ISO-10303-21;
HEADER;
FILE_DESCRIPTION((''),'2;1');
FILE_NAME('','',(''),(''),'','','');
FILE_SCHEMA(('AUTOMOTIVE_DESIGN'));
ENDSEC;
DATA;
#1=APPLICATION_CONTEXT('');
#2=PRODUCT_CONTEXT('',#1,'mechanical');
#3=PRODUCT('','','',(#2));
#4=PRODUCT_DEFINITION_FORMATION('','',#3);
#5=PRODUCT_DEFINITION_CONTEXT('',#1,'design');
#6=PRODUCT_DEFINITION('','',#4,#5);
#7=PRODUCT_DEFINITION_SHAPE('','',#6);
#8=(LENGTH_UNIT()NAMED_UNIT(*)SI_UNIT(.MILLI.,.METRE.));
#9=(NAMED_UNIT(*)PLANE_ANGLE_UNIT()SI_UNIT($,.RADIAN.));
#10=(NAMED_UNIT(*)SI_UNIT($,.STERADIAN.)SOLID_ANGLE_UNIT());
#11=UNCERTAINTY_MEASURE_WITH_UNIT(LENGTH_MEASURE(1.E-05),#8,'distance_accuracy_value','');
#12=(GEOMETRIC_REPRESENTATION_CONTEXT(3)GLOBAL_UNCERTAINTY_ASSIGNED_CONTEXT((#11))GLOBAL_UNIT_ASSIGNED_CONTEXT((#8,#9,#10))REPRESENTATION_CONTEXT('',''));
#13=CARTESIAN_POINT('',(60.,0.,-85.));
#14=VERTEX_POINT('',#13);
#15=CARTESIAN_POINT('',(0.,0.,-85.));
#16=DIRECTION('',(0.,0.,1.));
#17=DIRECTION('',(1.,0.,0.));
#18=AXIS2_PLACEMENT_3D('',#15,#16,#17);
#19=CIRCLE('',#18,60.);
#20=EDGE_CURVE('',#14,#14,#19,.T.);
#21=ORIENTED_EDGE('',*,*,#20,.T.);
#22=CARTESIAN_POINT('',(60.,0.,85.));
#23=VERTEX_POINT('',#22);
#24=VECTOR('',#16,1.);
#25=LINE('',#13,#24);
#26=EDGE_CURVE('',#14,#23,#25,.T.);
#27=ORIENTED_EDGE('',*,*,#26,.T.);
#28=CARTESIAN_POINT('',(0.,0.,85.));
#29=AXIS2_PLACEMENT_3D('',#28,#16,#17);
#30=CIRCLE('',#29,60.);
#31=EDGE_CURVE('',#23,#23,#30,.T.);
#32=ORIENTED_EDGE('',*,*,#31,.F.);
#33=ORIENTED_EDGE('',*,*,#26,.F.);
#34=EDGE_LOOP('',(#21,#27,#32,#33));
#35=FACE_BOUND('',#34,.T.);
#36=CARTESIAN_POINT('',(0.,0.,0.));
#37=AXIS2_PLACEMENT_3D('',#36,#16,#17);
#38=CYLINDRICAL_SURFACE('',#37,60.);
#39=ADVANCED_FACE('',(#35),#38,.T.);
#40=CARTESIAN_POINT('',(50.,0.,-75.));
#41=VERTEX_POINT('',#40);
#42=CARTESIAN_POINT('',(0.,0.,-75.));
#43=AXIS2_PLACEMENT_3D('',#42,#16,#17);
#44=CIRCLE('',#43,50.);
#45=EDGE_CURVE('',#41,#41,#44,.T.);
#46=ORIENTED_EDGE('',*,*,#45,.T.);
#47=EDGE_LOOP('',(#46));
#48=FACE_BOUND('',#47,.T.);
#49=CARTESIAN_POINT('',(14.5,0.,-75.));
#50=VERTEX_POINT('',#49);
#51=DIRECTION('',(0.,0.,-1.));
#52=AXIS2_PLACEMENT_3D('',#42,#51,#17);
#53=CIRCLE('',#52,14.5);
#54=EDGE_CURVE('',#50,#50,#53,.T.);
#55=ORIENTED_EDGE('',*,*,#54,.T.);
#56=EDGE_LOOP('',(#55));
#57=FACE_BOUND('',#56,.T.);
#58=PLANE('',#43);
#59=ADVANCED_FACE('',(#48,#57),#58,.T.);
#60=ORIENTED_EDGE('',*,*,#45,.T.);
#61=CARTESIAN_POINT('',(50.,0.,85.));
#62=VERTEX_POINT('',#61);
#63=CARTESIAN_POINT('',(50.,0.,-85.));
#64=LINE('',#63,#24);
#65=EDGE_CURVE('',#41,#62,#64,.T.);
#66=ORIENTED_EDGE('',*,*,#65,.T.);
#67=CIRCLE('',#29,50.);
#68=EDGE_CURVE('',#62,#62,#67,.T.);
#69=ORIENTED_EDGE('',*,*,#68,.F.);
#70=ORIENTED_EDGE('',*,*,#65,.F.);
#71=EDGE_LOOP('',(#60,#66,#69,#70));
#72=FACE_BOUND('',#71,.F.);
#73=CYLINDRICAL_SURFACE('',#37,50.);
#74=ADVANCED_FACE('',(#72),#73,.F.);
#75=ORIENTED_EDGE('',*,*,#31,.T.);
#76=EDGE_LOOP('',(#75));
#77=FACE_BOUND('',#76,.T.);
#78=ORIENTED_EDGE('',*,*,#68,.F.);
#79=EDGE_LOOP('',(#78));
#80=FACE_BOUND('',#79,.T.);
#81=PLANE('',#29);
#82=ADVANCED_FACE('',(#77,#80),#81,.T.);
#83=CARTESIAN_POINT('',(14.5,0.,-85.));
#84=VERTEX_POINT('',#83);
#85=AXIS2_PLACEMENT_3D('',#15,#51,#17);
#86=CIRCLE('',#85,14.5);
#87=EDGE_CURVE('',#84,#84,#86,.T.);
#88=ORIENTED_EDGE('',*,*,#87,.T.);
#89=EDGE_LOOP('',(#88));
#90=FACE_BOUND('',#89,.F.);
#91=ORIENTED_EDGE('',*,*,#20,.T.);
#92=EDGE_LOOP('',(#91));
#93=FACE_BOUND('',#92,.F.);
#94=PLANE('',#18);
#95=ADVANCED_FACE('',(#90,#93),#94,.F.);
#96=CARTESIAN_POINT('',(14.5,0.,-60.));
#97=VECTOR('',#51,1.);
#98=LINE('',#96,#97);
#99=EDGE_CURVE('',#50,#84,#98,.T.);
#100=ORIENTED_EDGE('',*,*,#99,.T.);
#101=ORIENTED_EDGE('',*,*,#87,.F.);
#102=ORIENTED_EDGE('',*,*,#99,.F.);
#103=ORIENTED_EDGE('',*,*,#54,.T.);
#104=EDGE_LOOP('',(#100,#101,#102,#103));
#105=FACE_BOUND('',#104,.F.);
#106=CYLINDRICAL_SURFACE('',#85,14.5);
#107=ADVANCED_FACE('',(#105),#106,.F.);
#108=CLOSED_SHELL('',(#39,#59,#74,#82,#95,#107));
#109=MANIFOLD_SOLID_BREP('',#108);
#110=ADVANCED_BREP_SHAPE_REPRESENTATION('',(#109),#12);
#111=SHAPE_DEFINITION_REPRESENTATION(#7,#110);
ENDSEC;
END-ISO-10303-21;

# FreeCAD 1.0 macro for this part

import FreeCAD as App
import Part
import Sketcher
from FreeCAD import Vector
Q = App.Units.Quantity


def faces_at(feature, points):
    """Names of the faces that lie closest to the given points."""
    faces = feature.Shape.Faces
    near = lambda p: min(range(len(faces)), key=lambda i: faces[i].distToShape(Part.Vertex(*p))[0])
    return sorted({f"Face{near(p) + 1}" for p in points})

doc = App.newDocument("Part")
params = doc.addObject("Spreadsheet::Sheet", "Params")
for row, (alias, value) in enumerate([
    ("sketch1_diameter", "120 mm"),
    ("pad1_length", "170 mm"),
    ("thickness_wall", "10 mm"),
    ("sketch2_diameter", "29 mm"),
    ("pocket1_length", "50 mm"),
], start=1):
    params.set(f"A{row}", alias)
    params.set(f"B{row}", "=" + value)
    params.setAlias(f"B{row}", alias)

body = doc.addObject("PartDesign::Body", "Body")

sketch1 = body.newObject("Sketcher::SketchObject", "Sketch")
sketch1.AttachmentSupport = (doc.getObject("XY_Plane"), [""])
sketch1.MapMode = "FlatFace"
sketch1.addGeometry(Part.Circle(Vector(0, 0, 0), Vector(0, 0, 1), 60), False)
sketch1.addConstraint([
    Sketcher.Constraint("Coincident", 0, 3, -1, 1),
    Sketcher.Constraint("Diameter", 0, Q("120 mm")),
])
sketch1.setExpression("Constraints[1]", "Params.sketch1_diameter")
pad1 = body.newObject("PartDesign::Pad", "Pad")
pad1.Profile = sketch1
pad1.setExpression("Length", "Params.pad1_length")
pad1.Midplane = True
doc.recompute()

thickness = body.newObject("PartDesign::Thickness", "Thickness")
thickness.Base = (pad1, faces_at(pad1, [(0, 0, 85)]))
thickness.setExpression("Value", "Params.thickness_wall")
thickness.Reversed = True
thickness.Join = "Arc"

sketch2 = body.newObject("Sketcher::SketchObject", "Sketch001")
sketch2.AttachmentSupport = (doc.getObject("XY_Plane"), [""])
sketch2.MapMode = "FlatFace"
sketch2.AttachmentOffset = App.Placement(Vector(0, 0, -85), App.Rotation())
sketch2.addGeometry(Part.Circle(Vector(0, 0, 0), Vector(0, 0, 1), 14), False)
sketch2.addConstraint([
    Sketcher.Constraint("Coincident", 0, 3, -1, 1),
    Sketcher.Constraint("Diameter", 0, Q("29 mm")),
])
sketch2.setExpression("Constraints[1]", "Params.sketch2_diameter")
pocket1 = body.newObject("PartDesign::Pocket", "Pocket")
pocket1.Profile = sketch2
pocket1.setExpression("Length", "Params.pocket1_length")
pocket1.Midplane = True

doc.recompute()
